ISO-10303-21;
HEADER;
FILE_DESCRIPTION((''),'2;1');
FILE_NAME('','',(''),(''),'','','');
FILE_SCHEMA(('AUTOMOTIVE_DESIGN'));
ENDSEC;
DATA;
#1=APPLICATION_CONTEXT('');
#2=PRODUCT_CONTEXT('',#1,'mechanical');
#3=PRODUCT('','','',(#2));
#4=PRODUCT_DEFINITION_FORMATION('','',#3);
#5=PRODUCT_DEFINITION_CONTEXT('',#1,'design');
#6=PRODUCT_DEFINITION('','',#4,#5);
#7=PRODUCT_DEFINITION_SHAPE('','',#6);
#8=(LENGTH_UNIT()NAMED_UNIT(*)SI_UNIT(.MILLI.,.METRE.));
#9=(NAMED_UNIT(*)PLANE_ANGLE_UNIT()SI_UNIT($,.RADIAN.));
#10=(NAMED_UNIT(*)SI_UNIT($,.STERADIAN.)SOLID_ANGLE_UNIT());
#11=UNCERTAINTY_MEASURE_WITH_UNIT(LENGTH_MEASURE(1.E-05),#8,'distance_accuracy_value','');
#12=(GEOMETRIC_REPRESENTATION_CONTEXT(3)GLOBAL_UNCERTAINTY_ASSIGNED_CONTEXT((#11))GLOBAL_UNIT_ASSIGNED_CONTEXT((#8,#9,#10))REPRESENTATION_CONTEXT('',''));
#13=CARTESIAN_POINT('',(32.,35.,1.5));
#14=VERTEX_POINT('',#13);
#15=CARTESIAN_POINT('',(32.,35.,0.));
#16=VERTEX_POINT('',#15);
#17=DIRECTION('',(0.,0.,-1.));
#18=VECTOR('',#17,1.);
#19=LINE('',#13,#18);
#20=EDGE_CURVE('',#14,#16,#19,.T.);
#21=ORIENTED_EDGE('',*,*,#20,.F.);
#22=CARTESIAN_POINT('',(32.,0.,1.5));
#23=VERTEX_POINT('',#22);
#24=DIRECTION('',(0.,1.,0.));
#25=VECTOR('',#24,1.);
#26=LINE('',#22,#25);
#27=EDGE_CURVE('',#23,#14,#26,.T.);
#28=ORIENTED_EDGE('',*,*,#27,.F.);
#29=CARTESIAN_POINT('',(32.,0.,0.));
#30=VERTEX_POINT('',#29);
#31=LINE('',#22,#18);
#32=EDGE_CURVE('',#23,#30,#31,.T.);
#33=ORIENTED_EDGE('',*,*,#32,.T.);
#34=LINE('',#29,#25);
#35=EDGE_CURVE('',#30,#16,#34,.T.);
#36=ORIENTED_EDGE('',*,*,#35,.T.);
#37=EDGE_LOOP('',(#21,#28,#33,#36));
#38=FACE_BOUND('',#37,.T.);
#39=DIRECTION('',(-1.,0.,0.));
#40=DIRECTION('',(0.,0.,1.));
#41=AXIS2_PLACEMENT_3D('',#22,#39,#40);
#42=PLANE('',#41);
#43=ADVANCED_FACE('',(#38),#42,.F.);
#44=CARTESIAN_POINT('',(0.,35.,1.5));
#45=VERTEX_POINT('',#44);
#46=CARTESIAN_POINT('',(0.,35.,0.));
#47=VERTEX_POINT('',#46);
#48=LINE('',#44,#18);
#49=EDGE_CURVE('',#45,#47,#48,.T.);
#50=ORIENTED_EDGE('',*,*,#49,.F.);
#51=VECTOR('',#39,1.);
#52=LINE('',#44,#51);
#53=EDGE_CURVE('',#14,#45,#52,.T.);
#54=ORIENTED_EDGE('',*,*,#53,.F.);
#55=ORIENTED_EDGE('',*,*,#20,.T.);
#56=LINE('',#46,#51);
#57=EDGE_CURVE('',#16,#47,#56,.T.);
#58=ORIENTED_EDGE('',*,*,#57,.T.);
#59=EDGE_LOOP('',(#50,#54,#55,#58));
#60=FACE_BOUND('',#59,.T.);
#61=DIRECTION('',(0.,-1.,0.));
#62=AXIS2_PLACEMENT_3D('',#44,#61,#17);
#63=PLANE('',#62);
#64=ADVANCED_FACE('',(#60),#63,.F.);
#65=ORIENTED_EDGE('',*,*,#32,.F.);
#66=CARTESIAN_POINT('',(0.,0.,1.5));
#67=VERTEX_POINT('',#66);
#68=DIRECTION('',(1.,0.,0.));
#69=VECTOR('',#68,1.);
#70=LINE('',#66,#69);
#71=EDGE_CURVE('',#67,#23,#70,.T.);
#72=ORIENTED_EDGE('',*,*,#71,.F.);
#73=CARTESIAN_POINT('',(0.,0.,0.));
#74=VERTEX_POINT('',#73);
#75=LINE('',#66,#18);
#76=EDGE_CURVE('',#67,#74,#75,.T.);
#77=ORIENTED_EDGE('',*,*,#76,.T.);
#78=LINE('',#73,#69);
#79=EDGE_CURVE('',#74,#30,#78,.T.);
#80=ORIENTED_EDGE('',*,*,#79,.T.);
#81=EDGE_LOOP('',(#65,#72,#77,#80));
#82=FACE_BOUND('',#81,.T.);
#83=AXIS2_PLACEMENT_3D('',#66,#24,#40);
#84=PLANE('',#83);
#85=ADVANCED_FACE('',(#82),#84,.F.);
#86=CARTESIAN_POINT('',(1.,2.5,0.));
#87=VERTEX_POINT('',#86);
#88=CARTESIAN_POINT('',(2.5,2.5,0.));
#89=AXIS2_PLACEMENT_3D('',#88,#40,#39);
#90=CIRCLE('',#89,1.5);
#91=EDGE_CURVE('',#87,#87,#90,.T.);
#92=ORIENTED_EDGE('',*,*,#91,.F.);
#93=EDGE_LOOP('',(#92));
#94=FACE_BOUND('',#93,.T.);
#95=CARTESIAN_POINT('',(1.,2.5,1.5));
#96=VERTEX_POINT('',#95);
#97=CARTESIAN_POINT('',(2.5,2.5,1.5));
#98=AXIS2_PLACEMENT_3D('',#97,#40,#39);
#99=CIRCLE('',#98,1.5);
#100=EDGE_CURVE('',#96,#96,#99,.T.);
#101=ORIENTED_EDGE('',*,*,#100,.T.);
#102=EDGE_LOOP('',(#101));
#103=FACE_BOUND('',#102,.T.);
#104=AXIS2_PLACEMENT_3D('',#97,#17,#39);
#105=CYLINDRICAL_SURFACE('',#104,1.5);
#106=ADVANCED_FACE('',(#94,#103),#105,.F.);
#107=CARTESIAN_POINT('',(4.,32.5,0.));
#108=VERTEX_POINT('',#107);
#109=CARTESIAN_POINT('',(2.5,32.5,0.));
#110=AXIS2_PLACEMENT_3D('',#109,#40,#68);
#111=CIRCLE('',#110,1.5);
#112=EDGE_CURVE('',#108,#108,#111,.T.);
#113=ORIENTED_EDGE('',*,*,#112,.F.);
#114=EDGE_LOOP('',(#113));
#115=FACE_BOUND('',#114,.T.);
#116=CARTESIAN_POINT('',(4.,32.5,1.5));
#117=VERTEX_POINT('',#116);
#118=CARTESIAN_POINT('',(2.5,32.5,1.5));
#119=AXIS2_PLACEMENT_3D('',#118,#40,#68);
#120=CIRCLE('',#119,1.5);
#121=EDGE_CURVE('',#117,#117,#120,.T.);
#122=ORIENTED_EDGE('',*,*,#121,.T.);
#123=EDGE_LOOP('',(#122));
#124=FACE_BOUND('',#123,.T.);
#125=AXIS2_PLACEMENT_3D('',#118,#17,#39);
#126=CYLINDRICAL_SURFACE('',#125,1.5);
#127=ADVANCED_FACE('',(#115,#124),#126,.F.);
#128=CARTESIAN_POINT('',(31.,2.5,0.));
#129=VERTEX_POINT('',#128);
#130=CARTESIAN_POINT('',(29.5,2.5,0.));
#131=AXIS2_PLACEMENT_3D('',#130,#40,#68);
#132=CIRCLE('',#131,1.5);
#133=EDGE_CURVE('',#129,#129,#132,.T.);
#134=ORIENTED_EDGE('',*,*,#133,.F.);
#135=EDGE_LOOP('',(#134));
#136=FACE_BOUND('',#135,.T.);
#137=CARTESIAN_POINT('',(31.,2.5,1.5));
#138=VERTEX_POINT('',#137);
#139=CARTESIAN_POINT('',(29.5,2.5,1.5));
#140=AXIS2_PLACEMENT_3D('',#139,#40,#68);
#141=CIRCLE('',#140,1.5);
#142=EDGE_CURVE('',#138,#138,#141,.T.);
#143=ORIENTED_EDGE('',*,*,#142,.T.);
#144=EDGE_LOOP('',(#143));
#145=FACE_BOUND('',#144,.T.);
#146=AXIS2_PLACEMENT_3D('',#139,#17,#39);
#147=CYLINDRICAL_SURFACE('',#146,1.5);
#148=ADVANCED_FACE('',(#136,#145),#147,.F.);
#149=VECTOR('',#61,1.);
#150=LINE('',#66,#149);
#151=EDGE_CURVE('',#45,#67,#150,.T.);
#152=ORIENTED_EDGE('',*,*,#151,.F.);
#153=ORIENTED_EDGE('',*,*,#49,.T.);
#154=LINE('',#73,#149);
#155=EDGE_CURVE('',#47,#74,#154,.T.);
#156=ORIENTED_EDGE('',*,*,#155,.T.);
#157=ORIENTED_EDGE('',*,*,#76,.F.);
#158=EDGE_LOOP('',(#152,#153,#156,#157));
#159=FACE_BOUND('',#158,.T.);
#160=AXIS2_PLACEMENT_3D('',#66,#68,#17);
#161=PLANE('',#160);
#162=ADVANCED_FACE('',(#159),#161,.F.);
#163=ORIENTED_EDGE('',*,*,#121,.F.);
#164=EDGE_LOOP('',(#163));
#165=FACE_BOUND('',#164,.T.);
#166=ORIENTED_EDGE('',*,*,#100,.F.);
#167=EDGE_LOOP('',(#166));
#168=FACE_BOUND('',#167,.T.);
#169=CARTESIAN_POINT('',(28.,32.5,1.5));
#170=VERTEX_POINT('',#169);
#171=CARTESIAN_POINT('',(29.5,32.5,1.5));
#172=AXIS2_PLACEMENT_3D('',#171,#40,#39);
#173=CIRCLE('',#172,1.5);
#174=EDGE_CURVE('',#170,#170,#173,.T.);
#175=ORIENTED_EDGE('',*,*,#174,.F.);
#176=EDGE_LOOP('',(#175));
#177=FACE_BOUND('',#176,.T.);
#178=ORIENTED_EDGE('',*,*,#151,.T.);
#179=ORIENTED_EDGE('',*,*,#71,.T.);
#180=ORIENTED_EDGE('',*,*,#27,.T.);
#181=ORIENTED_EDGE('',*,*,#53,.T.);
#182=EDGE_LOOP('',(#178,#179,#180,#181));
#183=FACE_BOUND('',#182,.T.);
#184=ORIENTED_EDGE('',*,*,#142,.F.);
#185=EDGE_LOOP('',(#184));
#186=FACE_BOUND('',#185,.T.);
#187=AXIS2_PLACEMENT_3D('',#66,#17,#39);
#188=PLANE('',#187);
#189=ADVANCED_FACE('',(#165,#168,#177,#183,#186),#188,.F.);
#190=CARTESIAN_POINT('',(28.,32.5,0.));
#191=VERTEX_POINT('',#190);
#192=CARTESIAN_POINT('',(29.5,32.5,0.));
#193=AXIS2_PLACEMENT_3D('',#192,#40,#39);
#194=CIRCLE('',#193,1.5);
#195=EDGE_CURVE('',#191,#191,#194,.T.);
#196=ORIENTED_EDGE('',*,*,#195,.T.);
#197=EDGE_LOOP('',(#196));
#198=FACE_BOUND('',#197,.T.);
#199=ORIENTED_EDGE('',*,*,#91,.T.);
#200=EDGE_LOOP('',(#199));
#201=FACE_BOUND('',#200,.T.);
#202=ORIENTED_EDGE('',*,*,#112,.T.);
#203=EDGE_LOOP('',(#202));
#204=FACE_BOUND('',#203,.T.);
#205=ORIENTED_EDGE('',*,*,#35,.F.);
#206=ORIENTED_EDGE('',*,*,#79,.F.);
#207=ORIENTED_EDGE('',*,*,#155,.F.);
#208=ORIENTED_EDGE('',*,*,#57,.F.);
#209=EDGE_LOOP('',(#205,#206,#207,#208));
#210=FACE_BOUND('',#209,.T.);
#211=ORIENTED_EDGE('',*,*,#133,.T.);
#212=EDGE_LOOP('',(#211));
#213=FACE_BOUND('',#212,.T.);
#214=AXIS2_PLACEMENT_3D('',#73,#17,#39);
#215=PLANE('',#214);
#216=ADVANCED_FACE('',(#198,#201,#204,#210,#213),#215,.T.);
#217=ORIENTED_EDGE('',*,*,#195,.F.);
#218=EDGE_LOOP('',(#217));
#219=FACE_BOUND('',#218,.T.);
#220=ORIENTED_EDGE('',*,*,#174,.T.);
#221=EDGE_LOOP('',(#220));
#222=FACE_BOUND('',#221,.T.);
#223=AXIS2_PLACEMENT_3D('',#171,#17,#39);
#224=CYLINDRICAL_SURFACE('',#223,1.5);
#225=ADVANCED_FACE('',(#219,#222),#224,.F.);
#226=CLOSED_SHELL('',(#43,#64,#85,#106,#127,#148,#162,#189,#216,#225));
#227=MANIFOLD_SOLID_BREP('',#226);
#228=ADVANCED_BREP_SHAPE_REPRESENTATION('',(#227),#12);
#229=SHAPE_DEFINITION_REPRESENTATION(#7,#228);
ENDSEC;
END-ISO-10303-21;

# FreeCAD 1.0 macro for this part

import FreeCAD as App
import Part
import Sketcher
from FreeCAD import Vector
Q = App.Units.Quantity


def add_polygon(sketch, points):
    """Adds a closed chain of lines whose ends are joined by coincident constraints."""
    first, n = sketch.GeometryCount, len(points)
    for a, b in zip(points, points[1:] + points[:1]):
        sketch.addGeometry(Part.LineSegment(App.Vector(*a, 0), App.Vector(*b, 0)), False)
    for i in range(n):
        sketch.addConstraint(Sketcher.Constraint("Coincident", first + i, 2, first + (i + 1) % n, 1))

doc = App.newDocument("Part")
body = doc.addObject("PartDesign::Body", "Body")

sketch1 = body.newObject("Sketcher::SketchObject", "Sketch")
sketch1.AttachmentSupport = (doc.getObject("XY_Plane"), [""])
sketch1.MapMode = "FlatFace"
add_polygon(sketch1, [(0, 35), (0, 0), (32, 0), (32, 35)])
sketch1.addGeometry(Part.Circle(Vector(2.5, 2.5, 0), Vector(0, 0, 1), 1.5), False)
sketch1.addGeometry(Part.Circle(Vector(29.5, 2.5, 0), Vector(0, 0, 1), 1.5), False)
sketch1.addGeometry(Part.Circle(Vector(2.5, 32.5, 0), Vector(0, 0, 1), 1.5), False)
sketch1.addGeometry(Part.Circle(Vector(29.5, 32.5, 0), Vector(0, 0, 1), 1.5), False)
sketch1.addConstraint([
    Sketcher.Constraint("Vertical", 0),
    Sketcher.Constraint("Horizontal", 1),
    Sketcher.Constraint("Vertical", 2),
    Sketcher.Constraint("Horizontal", 3),
    Sketcher.Constraint("Coincident", 0, 2, -1, 1),
    Sketcher.Constraint("Equal", 4, 5),
    Sketcher.Constraint("Equal", 5, 6),
    Sketcher.Constraint("Equal", 6, 7),
    Sketcher.Constraint("Horizontal", 4, 3, 5, 3),
    Sketcher.Constraint("Horizontal", 6, 3, 7, 3),
    Sketcher.Constraint("Vertical", 4, 3, 6, 3),
    Sketcher.Constraint("Vertical", 5, 3, 7, 3),
    Sketcher.Constraint("Diameter", 4, Q("3 mm")),
    Sketcher.Constraint("DistanceX", 1, 1, 1, 2, Q("32 mm")),
    Sketcher.Constraint("DistanceY", 0, 2, 0, 1, Q("35 mm")),
    Sketcher.Constraint("DistanceX", 4, 3, 5, 3, Q("27 mm")),
    Sketcher.Constraint("DistanceY", 4, 3, 6, 3, Q("30 mm")),
    Sketcher.Constraint("DistanceX", -1, 1, 4, 3, Q("2.5 mm")),
    Sketcher.Constraint("DistanceY", -1, 1, 4, 3, Q("2.5 mm")),
])
pad1 = body.newObject("PartDesign::Pad", "Pad")
pad1.Profile = sketch1
pad1.Length = 1.5

doc.recompute()
